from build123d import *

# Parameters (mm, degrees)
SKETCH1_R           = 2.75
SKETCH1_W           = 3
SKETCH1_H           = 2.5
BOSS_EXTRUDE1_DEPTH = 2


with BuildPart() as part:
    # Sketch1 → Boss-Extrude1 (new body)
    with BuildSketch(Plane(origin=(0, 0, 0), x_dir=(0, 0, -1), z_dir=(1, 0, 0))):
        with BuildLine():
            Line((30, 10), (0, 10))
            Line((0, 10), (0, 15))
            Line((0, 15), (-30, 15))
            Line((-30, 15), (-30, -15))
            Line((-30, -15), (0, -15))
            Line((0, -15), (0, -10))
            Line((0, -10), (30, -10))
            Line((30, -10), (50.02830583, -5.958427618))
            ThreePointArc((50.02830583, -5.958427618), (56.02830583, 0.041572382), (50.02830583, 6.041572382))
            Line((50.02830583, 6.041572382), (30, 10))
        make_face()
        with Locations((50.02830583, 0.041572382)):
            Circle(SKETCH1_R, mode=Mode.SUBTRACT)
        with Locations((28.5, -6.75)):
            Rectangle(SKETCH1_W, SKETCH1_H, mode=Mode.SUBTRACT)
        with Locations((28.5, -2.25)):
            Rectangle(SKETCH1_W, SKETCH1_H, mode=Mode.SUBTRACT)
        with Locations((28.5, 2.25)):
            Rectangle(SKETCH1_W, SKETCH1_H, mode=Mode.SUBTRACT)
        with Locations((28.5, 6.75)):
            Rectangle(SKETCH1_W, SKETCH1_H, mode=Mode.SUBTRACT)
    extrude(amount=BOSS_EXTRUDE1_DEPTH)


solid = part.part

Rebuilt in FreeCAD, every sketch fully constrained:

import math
import FreeCAD as App
import Part
import Sketcher
from FreeCAD import Vector
Q = App.Units.Quantity

doc = App.newDocument("Part")
body = doc.addObject("PartDesign::Body", "Body")

# Sketch on YZ plane
sketch1 = body.newObject("Sketcher::SketchObject", "Sketch")
sketch1.AttachmentSupport = (doc.getObject("YZ_Plane"), [""])
sketch1.MapMode = "FlatFace"
sketch1.addGeometry([
    Part.LineSegment(Vector(10, -30, 0), Vector(10, 0, 0)),  # 0
    Part.LineSegment(Vector(10, 0, 0), Vector(15, 0, 0)),  # 1
    Part.LineSegment(Vector(15, 0, 0), Vector(15, 30, 0)),  # 2
    Part.LineSegment(Vector(15, 30, 0), Vector(-15, 30, 0)),  # 3
    Part.LineSegment(Vector(-15, 30, 0), Vector(-15, 0, 0)),  # 4
    Part.LineSegment(Vector(-15, 0, 0), Vector(-10, 0, 0)),  # 5
    Part.LineSegment(Vector(-10, 0, 0), Vector(-10, -30, 0)),  # 6
    Part.LineSegment(Vector(-10, -30, 0), Vector(-5.958428, -50.028306, 0)),  # 7
    Part.ArcOfCircle(Part.Circle(Vector(0.041572, -50.028306, 0), Vector(0, 0, 1), 6), math.radians(180), math.radians(360)),  # 8
    Part.LineSegment(Vector(6.041572, -50.028306, 0), Vector(10, -30, 0)),  # 9
    Part.LineSegment(Vector(-8, -30, 0), Vector(-8, -27, 0)),  # 10
    Part.LineSegment(Vector(-8, -27, 0), Vector(-5.5, -27, 0)),  # 11
    Part.LineSegment(Vector(-5.5, -27, 0), Vector(-5.5, -30, 0)),  # 12
    Part.LineSegment(Vector(-5.5, -30, 0), Vector(-8, -30, 0)),  # 13
    Part.LineSegment(Vector(-3.5, -30, 0), Vector(-3.5, -27, 0)),  # 14
    Part.LineSegment(Vector(-3.5, -27, 0), Vector(-1, -27, 0)),  # 15
    Part.LineSegment(Vector(-1, -27, 0), Vector(-1, -30, 0)),  # 16
    Part.LineSegment(Vector(-1, -30, 0), Vector(-3.5, -30, 0)),  # 17
    Part.LineSegment(Vector(1, -30, 0), Vector(1, -27, 0)),  # 18
    Part.LineSegment(Vector(1, -27, 0), Vector(3.5, -27, 0)),  # 19
    Part.LineSegment(Vector(3.5, -27, 0), Vector(3.5, -30, 0)),  # 20
    Part.LineSegment(Vector(3.5, -30, 0), Vector(1, -30, 0)),  # 21
    Part.LineSegment(Vector(5.5, -30, 0), Vector(5.5, -27, 0)),  # 22
    Part.LineSegment(Vector(5.5, -27, 0), Vector(8, -27, 0)),  # 23
    Part.LineSegment(Vector(8, -27, 0), Vector(8, -30, 0)),  # 24
    Part.LineSegment(Vector(8, -30, 0), Vector(5.5, -30, 0)),  # 25
    Part.Circle(Vector(0.041572, -50.028306, 0), Vector(0, 0, 1), 2.75),  # 26
], False)
sketch1.addConstraint([
    Sketcher.Constraint("Coincident", 0, 2, 1, 1),
    Sketcher.Constraint("Coincident", 1, 2, 2, 1),
    Sketcher.Constraint("Coincident", 2, 2, 3, 1),
    Sketcher.Constraint("Coincident", 3, 2, 4, 1),
    Sketcher.Constraint("Coincident", 4, 2, 5, 1),
    Sketcher.Constraint("Coincident", 5, 2, 6, 1),
    Sketcher.Constraint("Coincident", 6, 2, 7, 1),
    Sketcher.Constraint("Coincident", 7, 2, 8, 1),
    Sketcher.Constraint("Coincident", 8, 2, 9, 1),
    Sketcher.Constraint("Coincident", 9, 2, 0, 1),
    Sketcher.Constraint("Coincident", 10, 2, 11, 1),
    Sketcher.Constraint("Coincident", 11, 2, 12, 1),
    Sketcher.Constraint("Coincident", 12, 2, 13, 1),
    Sketcher.Constraint("Coincident", 13, 2, 10, 1),
    Sketcher.Constraint("Coincident", 14, 2, 15, 1),
    Sketcher.Constraint("Coincident", 15, 2, 16, 1),
    Sketcher.Constraint("Coincident", 16, 2, 17, 1),
    Sketcher.Constraint("Coincident", 17, 2, 14, 1),
    Sketcher.Constraint("Coincident", 18, 2, 19, 1),
    Sketcher.Constraint("Coincident", 19, 2, 20, 1),
    Sketcher.Constraint("Coincident", 20, 2, 21, 1),
    Sketcher.Constraint("Coincident", 21, 2, 18, 1),
    Sketcher.Constraint("Coincident", 22, 2, 23, 1),
    Sketcher.Constraint("Coincident", 23, 2, 24, 1),
    Sketcher.Constraint("Coincident", 24, 2, 25, 1),
    Sketcher.Constraint("Coincident", 25, 2, 22, 1),
    Sketcher.Constraint("Vertical", 0),
    Sketcher.Constraint("Horizontal", 1),
    Sketcher.Constraint("Vertical", 2),
    Sketcher.Constraint("Horizontal", 3),
    Sketcher.Constraint("Vertical", 4),
    Sketcher.Constraint("Horizontal", 5),
    Sketcher.Constraint("Vertical", 6),
    Sketcher.Constraint("Vertical", 10),
    Sketcher.Constraint("Horizontal", 11),
    Sketcher.Constraint("Vertical", 12),
    Sketcher.Constraint("Horizontal", 13),
    Sketcher.Constraint("Vertical", 14),
    Sketcher.Constraint("Horizontal", 15),
    Sketcher.Constraint("Vertical", 16),
    Sketcher.Constraint("Horizontal", 17),
    Sketcher.Constraint("Vertical", 18),
    Sketcher.Constraint("Horizontal", 19),
    Sketcher.Constraint("Vertical", 20),
    Sketcher.Constraint("Horizontal", 21),
    Sketcher.Constraint("Vertical", 22),
    Sketcher.Constraint("Horizontal", 23),
    Sketcher.Constraint("Vertical", 24),
    Sketcher.Constraint("Horizontal", 25),
    Sketcher.Constraint("Coincident", 26, 3, 8, 3),
    Sketcher.Constraint("Symmetric", 1, 2, 4, 2, -1, 1),
    Sketcher.Constraint("Symmetric", 0, 2, 5, 2, -2),
    Sketcher.Constraint("Symmetric", 15, 2, 18, 2, -2),
    Sketcher.Constraint("Symmetric", 17, 2, 20, 2, -2),
    Sketcher.Constraint("Symmetric", 11, 2, 22, 2, -2),
    Sketcher.Constraint("Symmetric", 13, 2, 24, 2, -2),
    Sketcher.Constraint("Horizontal", 26, 3, 7, 2),
    Sketcher.Constraint("Horizontal", 7, 2, 8, 2),
    Sketcher.Constraint("Horizontal", 6, 2, 9, 2),
    Sketcher.Constraint("Horizontal", 9, 2, 12, 2),
    Sketcher.Constraint("Horizontal", 11, 2, 14, 2),
    Sketcher.Constraint("Horizontal", 13, 2, 16, 2),
    Sketcher.Constraint("Equal", 13, 15),
    Sketcher.Constraint("Equal", 3, 0),
    Sketcher.Constraint("Equal", 0, 2),
    Sketcher.Constraint("Radius", 8, Q("6 mm")),
    Sketcher.Constraint("Diameter", 26, Q("5.5 mm")),
    Sketcher.Constraint("DistanceX", 1, 1, 1, 2, Q("5 mm")),
    Sketcher.Constraint("DistanceX", 3, 2, 3, 1, Q("30 mm")),
    Sketcher.Constraint("DistanceY", 10, 1, 10, 2, Q("3 mm")),
    Sketcher.Constraint("DistanceX", 11, 1, 11, 2, Q("2.5 mm")),
    Sketcher.Constraint("DistanceX", 10, 2, -1, 1, Q("8 mm")),
    Sketcher.Constraint("DistanceX", 15, 2, -1, 1, Q("1 mm")),
    Sketcher.Constraint("Distance", 7, Q("20.432018 mm")),
    Sketcher.Constraint("Distance", 9, Q("20.415734 mm")),
])
pad1 = body.newObject("PartDesign::Pad", "Pad")
pad1.Profile = sketch1
pad1.Length = 2

doc.recompute()
